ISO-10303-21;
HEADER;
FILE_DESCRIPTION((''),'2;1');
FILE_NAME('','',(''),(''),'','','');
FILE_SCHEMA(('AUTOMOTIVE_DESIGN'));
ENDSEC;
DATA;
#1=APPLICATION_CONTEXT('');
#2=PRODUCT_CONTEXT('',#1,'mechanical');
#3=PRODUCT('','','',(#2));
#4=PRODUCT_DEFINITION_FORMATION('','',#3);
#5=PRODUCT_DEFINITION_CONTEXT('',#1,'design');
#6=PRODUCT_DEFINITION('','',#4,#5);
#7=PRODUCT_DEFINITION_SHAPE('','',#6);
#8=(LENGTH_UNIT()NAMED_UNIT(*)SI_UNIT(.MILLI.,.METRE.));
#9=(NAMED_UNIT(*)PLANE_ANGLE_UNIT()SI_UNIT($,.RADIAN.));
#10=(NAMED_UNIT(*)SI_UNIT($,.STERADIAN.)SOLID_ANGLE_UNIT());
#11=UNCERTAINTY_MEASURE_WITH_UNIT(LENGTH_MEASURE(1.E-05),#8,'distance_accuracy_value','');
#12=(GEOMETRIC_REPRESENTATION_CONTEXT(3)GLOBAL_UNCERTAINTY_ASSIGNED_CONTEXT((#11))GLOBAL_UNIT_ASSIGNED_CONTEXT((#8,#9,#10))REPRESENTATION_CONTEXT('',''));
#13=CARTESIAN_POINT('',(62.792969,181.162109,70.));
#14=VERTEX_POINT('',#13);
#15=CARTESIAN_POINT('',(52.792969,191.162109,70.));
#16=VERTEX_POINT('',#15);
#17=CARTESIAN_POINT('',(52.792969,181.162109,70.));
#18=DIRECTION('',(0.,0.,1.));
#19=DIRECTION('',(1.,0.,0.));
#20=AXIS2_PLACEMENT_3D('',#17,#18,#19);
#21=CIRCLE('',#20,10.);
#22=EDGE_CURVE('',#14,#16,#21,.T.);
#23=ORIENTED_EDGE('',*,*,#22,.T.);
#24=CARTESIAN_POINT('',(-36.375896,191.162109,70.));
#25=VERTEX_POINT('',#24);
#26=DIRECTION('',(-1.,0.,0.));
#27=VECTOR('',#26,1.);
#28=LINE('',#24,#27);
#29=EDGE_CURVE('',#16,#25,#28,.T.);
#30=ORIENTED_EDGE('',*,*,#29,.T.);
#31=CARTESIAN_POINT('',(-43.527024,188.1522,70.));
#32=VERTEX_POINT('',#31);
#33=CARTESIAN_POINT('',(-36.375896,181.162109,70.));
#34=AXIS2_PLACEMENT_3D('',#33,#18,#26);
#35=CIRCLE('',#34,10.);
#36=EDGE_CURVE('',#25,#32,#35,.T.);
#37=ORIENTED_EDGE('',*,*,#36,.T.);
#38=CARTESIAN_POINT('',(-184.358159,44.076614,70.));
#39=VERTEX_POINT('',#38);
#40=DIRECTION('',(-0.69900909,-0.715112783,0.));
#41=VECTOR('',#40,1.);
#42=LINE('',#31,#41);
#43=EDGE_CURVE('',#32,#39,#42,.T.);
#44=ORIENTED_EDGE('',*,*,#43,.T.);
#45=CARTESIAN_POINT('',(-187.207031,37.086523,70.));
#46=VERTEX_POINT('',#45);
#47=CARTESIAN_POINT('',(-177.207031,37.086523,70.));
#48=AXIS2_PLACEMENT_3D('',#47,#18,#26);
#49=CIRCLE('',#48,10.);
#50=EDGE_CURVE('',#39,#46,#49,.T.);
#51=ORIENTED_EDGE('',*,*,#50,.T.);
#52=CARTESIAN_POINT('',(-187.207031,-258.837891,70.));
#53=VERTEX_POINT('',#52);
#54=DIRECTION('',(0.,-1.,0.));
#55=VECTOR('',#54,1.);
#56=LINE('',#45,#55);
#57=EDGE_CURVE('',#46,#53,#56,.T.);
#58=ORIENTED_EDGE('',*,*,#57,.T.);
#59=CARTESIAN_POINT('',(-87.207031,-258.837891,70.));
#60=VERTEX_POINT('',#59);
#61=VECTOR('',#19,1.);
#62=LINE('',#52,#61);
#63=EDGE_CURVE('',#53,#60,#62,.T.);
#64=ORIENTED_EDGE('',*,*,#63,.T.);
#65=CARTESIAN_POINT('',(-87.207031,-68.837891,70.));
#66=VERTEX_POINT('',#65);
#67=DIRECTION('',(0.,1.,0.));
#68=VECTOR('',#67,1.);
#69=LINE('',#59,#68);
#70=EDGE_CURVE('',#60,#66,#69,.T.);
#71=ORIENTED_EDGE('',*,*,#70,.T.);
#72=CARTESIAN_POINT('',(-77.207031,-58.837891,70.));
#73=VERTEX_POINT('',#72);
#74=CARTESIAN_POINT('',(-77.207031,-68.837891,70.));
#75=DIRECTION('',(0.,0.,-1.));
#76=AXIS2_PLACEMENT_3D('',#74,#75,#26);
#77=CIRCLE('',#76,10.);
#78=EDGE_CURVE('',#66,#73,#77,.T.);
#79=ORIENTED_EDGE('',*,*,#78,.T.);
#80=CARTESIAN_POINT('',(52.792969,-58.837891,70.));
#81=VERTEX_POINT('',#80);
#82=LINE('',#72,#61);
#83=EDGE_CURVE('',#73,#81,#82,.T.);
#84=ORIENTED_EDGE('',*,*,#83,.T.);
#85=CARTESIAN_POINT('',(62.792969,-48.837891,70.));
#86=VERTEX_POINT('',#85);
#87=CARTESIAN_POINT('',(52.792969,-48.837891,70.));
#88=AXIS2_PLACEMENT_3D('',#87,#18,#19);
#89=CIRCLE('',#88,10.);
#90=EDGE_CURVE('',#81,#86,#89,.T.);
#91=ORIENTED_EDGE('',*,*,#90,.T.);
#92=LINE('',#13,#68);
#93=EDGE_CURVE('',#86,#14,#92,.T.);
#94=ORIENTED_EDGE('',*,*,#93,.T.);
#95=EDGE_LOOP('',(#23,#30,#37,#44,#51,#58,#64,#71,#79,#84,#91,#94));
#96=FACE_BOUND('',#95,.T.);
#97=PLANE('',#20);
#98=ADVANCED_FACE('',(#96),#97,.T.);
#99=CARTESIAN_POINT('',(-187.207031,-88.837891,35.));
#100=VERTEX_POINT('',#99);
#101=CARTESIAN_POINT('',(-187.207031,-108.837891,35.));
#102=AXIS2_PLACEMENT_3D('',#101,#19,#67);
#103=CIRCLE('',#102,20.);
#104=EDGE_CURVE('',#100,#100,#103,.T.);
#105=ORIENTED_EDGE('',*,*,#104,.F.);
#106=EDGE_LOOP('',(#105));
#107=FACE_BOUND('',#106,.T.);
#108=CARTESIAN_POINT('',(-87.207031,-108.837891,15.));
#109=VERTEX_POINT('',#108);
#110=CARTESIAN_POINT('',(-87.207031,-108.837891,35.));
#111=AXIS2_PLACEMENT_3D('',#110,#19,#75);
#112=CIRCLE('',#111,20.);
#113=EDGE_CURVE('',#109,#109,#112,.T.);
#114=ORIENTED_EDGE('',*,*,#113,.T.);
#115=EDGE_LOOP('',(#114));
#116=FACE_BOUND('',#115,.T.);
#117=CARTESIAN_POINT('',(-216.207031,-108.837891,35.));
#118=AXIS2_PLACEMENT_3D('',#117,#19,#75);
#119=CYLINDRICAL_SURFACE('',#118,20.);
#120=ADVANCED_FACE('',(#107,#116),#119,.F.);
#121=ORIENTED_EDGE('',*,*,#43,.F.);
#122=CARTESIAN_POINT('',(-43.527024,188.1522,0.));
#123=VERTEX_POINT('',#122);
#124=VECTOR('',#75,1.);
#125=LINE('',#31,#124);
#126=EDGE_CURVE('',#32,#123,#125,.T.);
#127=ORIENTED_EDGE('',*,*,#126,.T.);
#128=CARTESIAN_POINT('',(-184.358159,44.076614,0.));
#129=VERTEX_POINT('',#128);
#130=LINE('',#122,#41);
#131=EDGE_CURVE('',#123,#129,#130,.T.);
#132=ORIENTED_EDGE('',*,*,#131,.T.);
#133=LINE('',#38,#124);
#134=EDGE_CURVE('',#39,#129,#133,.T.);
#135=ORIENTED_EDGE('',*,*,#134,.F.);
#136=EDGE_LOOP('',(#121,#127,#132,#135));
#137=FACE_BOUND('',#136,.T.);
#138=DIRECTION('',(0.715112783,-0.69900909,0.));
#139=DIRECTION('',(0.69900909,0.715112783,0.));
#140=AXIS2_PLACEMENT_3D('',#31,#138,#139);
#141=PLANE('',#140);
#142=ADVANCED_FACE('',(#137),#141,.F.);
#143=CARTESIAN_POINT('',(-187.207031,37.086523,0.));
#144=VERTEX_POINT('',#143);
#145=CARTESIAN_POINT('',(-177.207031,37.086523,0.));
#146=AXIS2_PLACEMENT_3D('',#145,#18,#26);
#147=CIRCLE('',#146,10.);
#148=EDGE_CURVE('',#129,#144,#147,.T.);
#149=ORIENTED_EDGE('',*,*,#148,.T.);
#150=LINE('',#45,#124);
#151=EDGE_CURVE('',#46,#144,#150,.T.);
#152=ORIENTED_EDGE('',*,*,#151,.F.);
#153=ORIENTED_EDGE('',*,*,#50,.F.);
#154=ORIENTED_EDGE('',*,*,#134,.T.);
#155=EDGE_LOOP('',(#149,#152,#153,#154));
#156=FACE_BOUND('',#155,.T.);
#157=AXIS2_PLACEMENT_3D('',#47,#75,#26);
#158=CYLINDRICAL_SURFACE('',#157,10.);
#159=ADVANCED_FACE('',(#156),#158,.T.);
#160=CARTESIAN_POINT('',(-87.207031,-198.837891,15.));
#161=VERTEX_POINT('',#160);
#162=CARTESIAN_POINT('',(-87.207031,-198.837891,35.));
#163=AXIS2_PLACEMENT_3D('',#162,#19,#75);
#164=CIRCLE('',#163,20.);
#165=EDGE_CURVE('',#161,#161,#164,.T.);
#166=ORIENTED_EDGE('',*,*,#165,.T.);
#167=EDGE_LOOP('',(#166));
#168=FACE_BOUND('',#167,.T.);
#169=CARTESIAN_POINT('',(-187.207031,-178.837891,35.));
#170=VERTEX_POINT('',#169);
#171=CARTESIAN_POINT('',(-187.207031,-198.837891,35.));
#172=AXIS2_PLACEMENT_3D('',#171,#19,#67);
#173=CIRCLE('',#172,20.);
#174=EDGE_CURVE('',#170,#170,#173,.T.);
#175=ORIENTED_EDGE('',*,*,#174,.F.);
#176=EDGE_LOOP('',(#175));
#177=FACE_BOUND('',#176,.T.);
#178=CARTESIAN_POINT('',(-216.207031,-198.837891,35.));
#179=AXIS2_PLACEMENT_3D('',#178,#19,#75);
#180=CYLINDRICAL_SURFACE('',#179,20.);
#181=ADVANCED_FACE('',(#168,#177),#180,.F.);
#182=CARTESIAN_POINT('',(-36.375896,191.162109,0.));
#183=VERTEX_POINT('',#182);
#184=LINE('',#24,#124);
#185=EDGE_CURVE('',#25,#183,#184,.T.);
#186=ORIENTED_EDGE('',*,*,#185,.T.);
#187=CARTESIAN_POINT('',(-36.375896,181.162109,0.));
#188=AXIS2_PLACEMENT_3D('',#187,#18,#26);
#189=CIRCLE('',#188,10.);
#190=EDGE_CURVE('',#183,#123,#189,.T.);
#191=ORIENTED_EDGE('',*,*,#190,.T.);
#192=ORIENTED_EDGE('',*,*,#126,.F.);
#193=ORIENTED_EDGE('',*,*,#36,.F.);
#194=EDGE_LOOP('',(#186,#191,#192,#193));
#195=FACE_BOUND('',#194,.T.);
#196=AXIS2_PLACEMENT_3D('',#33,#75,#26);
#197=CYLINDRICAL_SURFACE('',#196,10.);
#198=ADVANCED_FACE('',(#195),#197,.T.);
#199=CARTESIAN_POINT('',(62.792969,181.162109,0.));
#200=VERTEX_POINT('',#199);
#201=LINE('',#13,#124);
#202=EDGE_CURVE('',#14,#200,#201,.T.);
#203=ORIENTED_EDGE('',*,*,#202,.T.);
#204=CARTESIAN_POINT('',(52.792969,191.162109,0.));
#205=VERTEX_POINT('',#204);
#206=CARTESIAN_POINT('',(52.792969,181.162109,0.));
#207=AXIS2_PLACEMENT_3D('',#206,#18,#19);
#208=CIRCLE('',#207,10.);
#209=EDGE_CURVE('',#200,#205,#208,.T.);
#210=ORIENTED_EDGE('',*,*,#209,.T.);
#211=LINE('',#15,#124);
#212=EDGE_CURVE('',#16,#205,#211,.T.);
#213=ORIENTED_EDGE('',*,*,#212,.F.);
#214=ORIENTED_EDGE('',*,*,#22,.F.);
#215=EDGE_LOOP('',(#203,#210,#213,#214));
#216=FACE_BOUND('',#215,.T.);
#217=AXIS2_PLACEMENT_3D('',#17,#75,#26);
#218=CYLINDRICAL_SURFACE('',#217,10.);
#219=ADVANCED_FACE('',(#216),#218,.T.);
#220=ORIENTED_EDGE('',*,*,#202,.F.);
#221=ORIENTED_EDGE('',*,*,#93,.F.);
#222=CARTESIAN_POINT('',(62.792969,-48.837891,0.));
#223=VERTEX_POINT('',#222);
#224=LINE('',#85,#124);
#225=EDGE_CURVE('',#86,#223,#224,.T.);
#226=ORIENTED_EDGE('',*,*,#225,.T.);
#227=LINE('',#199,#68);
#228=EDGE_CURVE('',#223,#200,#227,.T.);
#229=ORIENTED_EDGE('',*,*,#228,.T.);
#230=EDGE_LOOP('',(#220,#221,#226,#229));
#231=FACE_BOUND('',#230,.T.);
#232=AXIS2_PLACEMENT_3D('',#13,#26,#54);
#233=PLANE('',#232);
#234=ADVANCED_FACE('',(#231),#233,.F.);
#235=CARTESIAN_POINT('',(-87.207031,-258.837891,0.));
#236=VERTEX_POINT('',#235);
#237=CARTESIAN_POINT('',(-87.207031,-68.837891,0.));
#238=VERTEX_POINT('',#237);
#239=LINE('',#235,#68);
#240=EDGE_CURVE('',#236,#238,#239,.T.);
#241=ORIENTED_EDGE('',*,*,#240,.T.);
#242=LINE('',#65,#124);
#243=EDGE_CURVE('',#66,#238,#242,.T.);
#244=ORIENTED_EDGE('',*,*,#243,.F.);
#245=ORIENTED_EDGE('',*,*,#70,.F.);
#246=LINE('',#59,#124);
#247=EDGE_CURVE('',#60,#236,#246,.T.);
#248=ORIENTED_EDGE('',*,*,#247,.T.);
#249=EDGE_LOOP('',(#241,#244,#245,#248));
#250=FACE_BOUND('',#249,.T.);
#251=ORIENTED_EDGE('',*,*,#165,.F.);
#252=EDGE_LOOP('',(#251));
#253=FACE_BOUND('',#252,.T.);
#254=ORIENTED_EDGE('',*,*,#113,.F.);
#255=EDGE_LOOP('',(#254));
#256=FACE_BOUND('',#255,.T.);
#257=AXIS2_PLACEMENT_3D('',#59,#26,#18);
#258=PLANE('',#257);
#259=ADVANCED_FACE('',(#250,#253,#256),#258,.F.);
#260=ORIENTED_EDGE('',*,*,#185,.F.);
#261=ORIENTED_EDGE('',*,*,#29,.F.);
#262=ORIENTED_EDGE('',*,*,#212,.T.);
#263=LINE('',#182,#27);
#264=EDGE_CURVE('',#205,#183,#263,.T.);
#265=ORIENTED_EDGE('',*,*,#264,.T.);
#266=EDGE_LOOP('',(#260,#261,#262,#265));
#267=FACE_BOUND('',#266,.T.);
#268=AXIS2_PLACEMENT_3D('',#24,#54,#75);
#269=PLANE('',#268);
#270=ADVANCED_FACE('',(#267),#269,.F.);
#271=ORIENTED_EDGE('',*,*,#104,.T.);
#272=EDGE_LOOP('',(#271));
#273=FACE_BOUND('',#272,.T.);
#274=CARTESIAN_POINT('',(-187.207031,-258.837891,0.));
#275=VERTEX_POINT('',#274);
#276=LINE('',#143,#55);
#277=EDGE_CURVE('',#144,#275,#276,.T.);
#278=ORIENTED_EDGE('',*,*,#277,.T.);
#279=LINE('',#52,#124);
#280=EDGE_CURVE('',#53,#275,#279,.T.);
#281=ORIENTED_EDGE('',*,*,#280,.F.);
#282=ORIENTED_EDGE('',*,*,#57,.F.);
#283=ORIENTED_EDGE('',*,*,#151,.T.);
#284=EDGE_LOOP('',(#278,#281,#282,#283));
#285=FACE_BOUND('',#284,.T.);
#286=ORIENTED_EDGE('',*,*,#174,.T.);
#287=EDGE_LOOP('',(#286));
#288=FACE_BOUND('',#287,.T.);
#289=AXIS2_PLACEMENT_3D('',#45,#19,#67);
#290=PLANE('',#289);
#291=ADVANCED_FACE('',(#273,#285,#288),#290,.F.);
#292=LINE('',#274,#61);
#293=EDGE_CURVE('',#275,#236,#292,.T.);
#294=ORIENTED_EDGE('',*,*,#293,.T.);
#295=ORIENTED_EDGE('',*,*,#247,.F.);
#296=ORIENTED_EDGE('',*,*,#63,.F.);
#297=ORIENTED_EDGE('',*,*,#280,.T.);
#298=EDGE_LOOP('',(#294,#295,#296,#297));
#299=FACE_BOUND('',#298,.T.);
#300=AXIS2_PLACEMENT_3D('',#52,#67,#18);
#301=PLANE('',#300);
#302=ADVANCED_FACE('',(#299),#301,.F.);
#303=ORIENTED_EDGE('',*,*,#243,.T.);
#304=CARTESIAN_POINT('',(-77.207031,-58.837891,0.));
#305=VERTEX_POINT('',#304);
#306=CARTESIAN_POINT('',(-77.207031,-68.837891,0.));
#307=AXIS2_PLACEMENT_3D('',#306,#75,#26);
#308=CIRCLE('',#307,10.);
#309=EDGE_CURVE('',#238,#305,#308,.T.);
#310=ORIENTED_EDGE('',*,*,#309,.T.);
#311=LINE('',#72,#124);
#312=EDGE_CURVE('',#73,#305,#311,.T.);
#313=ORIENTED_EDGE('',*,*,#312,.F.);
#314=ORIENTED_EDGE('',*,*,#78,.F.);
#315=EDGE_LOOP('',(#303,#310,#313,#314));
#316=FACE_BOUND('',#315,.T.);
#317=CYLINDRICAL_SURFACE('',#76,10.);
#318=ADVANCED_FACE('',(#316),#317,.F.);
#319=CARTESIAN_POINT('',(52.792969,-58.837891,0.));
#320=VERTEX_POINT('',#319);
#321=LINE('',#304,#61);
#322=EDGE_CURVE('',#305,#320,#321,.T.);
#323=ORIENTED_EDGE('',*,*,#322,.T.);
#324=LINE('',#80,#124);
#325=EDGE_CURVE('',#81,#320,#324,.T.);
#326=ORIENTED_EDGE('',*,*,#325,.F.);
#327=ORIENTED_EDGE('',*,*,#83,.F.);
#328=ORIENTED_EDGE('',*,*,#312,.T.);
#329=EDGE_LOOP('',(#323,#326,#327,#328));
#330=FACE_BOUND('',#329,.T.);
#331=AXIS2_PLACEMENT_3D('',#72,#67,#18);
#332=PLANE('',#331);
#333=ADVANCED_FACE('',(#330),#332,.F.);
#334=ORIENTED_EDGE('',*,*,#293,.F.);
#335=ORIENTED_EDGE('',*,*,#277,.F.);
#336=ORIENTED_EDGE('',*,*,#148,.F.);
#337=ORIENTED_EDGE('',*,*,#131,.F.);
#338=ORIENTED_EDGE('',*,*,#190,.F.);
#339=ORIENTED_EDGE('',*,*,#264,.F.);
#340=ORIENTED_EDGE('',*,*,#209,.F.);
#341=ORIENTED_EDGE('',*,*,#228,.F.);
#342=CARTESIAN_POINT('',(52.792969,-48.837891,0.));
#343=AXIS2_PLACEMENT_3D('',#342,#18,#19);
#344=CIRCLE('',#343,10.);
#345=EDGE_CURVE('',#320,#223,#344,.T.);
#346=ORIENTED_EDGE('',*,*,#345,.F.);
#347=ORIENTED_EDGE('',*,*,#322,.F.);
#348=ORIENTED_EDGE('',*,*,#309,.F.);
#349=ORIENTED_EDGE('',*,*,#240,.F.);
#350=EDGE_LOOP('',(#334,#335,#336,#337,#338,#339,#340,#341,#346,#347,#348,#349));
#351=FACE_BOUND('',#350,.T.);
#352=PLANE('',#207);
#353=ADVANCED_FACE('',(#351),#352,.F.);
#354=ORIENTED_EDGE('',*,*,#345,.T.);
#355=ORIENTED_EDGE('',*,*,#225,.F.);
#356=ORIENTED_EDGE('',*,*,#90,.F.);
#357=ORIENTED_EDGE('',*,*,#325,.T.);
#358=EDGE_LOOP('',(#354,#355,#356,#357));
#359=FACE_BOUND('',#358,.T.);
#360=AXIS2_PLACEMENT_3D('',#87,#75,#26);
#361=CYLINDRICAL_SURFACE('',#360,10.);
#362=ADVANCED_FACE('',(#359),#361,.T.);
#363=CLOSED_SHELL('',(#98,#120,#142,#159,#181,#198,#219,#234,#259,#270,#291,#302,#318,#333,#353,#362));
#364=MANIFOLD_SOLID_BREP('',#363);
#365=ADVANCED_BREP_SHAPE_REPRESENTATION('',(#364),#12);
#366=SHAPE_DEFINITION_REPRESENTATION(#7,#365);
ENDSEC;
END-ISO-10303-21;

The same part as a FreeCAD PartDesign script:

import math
import FreeCAD as App
import Part
import Sketcher
from FreeCAD import Vector
Q = App.Units.Quantity

doc = App.newDocument("Part")
body = doc.addObject("PartDesign::Body", "Body")

# Sketch on XY plane
sketch1 = doc.addObject("Sketcher::SketchObject", "Sketch")
body.addObject(sketch1)
sketch1.AttachmentSupport = (doc.XY_Plane, [""])
sketch1.MapMode = "FlatFace"
sketch1.addGeometry([
    Part.LineSegment(Vector(-187.207031, 37.086523, 0), Vector(-187.207031, -258.837891, 0)),  # 0
    Part.LineSegment(Vector(-187.207031, -258.837891, 0), Vector(-87.207031, -258.837891, 0)),  # 1
    Part.LineSegment(Vector(-87.207031, -258.837891, 0), Vector(-87.207031, -68.837891, 0)),  # 2
    Part.ArcOfCircle(Part.Circle(Vector(-77.207031, -68.837891, 0), Vector(0, 0, 1), 10), math.radians(90), math.radians(180)),  # 3
    Part.LineSegment(Vector(-77.207031, -58.837891, 0), Vector(52.792969, -58.837891, 0)),  # 4
    Part.ArcOfCircle(Part.Circle(Vector(52.792969, -48.837891, 0), Vector(0, 0, 1), 10), math.radians(-90), math.radians(0)),  # 5
    Part.LineSegment(Vector(62.792969, -48.837891, 0), Vector(62.792969, 181.162109, 0)),  # 6
    Part.ArcOfCircle(Part.Circle(Vector(52.792969, 181.162109, 0), Vector(0, 0, 1), 10), math.radians(0), math.radians(90)),  # 7
    Part.LineSegment(Vector(52.792969, 191.162109, 0), Vector(-36.375896, 191.162109, 0)),  # 8
    Part.ArcOfCircle(Part.Circle(Vector(-36.375896, 181.162109, 0), Vector(0, 0, 1), 10), math.radians(90), math.radians(135.652443)),  # 9
    Part.LineSegment(Vector(-43.527024, 188.1522, 0), Vector(-184.358159, 44.076614, 0)),  # 10
    Part.ArcOfCircle(Part.Circle(Vector(-177.207031, 37.086523, 0), Vector(0, 0, 1), 10), math.radians(135.652443), math.radians(180)),  # 11
], False)
sketch1.addConstraint([
    Sketcher.Constraint("Coincident", 0, 2, 1, 1),
    Sketcher.Constraint("Coincident", 1, 2, 2, 1),
    Sketcher.Constraint("Tangent", 2, 2, 3, 2),
    Sketcher.Constraint("Tangent", 3, 1, 4, 1),
    Sketcher.Constraint("Tangent", 4, 2, 5, 1),
    Sketcher.Constraint("Tangent", 5, 2, 6, 1),
    Sketcher.Constraint("Tangent", 6, 2, 7, 1),
    Sketcher.Constraint("Tangent", 7, 2, 8, 1),
    Sketcher.Constraint("Tangent", 8, 2, 9, 1),
    Sketcher.Constraint("Tangent", 9, 2, 10, 1),
    Sketcher.Constraint("Tangent", 10, 2, 11, 1),
    Sketcher.Constraint("Tangent", 11, 2, 0, 1),
    Sketcher.Constraint("Vertical", 0),
    Sketcher.Constraint("Horizontal", 1),
    Sketcher.Constraint("Vertical", 2),
    Sketcher.Constraint("Horizontal", 4),
    Sketcher.Constraint("Vertical", 6),
    Sketcher.Constraint("Horizontal", 8),
    Sketcher.Constraint("Equal", 3, 5),
    Sketcher.Constraint("Equal", 5, 7),
    Sketcher.Constraint("Equal", 7, 9),
    Sketcher.Constraint("Equal", 9, 11),
    Sketcher.Constraint("Radius", 3, Q("10 mm")),
    Sketcher.Constraint("DistanceX", 1, 1, 1, 2, Q("100 mm")),
    Sketcher.Constraint("DistanceX", 4, 1, 4, 2, Q("130 mm")),
    Sketcher.Constraint("DistanceY", 2, 1, 2, 2, Q("190 mm")),
    Sketcher.Constraint("DistanceY", 6, 1, 6, 2, Q("230 mm")),
    Sketcher.Constraint("DistanceY", -1, 1, 9, 2, Q("188.1522 mm")),
    Sketcher.Constraint("DistanceX", 8, 2, 8, 1, Q("89.168865 mm")),
    Sketcher.Constraint("DistanceY", 0, 2, 0, 1, Q("295.924413 mm")),
    Sketcher.Constraint("DistanceX", 3, 3, -1, 1, Q("77.207031 mm")),
])
pad1 = doc.addObject("PartDesign::Pad", "Pad")
body.addObject(pad1)
pad1.Profile = sketch1
pad1.Length = 70

# Sketch on YZ plane
sketch2 = doc.addObject("Sketcher::SketchObject", "Sketch001")
body.addObject(sketch2)
sketch2.AttachmentSupport = (doc.YZ_Plane, [""])
sketch2.MapMode = "FlatFace"
sketch2.AttachmentOffset = App.Placement(Vector(0, 0, -87.207031), App.Rotation())
sketch2.addGeometry([
    Part.Circle(Vector(-108.837891, 35, 0), Vector(0, 0, 1), 20),
    Part.Circle(Vector(-198.837891, 35, 0), Vector(0, 0, 1), 20),
], False)
sketch2.addConstraint([
    Sketcher.Constraint("Equal", 0, 1),
    Sketcher.Constraint("Horizontal", 0, 3, 1, 3),
    Sketcher.Constraint("Diameter", 0, Q("40 mm")),
    Sketcher.Constraint("DistanceY", -1, 1, 0, 3, Q("35 mm")),
    Sketcher.Constraint("DistanceX", 1, 3, 0, 3, Q("90 mm")),
    Sketcher.Constraint("DistanceX", 0, 3, -1, 1, Q("108.837891 mm")),
])
pocket1 = doc.addObject("PartDesign::Pocket", "Pocket")
body.addObject(pocket1)
pocket1.Profile = sketch2
pocket1.Length = 129

doc.recompute()
